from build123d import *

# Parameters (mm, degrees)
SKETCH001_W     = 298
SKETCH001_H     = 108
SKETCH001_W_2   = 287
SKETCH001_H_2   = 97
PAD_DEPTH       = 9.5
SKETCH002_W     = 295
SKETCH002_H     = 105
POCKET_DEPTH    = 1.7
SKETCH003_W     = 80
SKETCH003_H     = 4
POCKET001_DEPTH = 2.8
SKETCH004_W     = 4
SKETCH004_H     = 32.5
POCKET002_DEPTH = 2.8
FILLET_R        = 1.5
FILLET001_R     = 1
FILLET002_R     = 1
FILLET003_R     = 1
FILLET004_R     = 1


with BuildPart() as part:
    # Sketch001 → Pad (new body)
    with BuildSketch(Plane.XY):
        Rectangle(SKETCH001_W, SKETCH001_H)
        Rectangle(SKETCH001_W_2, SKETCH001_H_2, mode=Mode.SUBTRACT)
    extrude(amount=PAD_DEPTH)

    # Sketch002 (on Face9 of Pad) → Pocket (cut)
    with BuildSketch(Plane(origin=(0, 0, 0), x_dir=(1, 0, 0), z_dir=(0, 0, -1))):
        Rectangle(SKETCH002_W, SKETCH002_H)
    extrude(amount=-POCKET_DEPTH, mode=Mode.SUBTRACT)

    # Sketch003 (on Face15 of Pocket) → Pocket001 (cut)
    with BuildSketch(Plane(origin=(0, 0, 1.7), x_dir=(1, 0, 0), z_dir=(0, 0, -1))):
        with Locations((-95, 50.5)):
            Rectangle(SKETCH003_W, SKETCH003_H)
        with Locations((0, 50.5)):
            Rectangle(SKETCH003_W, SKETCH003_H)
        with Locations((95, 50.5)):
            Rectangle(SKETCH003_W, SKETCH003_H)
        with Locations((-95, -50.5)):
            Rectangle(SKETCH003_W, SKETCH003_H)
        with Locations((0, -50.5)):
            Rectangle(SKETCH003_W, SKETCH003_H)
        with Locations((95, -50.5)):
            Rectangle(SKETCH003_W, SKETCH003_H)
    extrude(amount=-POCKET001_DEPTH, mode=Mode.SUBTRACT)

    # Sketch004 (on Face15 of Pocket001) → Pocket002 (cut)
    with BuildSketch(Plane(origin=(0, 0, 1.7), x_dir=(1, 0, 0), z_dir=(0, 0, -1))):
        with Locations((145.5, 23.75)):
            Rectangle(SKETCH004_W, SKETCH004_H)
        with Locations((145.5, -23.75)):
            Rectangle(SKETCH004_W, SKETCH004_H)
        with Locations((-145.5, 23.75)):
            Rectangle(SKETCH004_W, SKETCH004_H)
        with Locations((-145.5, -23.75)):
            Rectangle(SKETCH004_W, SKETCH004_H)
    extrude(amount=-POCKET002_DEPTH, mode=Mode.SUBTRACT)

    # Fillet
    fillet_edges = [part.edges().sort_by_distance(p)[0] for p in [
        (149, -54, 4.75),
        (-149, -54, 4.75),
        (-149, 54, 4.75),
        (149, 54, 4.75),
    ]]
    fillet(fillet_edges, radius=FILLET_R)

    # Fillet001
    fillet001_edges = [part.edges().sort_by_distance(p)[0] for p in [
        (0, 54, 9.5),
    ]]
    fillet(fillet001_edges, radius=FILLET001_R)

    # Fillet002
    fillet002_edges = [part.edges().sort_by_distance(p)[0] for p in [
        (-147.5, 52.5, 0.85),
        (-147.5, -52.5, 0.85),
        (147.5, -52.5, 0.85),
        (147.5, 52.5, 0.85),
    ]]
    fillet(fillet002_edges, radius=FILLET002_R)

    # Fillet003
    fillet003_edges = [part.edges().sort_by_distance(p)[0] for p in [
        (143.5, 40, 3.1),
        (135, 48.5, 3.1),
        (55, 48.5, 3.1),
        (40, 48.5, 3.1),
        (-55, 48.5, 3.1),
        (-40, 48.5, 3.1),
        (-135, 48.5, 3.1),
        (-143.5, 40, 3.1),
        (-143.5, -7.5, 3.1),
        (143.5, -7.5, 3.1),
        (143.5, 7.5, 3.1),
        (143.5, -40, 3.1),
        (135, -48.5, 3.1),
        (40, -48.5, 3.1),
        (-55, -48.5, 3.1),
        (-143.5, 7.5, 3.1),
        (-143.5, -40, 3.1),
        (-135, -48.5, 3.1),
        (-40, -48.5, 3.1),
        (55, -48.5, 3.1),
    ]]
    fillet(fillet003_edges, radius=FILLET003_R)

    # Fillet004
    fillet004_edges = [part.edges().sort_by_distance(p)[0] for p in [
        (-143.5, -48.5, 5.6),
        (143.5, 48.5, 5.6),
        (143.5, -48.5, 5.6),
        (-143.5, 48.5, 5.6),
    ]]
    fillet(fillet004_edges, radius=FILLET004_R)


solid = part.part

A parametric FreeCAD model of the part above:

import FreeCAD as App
import Part
import Sketcher

V = App.Vector
Q = App.Units.Quantity


def edges_at(feature, points):
    """Names of the edges that pass closest to the given points."""
    edges = feature.Shape.Edges
    near = lambda p: min(range(len(edges)), key=lambda i: edges[i].distToShape(Part.Vertex(*p))[0])
    return sorted({f"Edge{near(p) + 1}" for p in points})


def add_polygon(sketch, points):
    """Adds a closed chain of lines whose ends are joined by coincident constraints."""
    first, n = sketch.GeometryCount, len(points)
    for a, b in zip(points, points[1:] + points[:1]):
        sketch.addGeometry(Part.LineSegment(App.Vector(*a, 0), App.Vector(*b, 0)), False)
    for i in range(n):
        sketch.addConstraint(Sketcher.Constraint("Coincident", first + i, 2, first + (i + 1) % n, 1))

doc = App.newDocument("Part")
body = doc.addObject("PartDesign::Body", "Body")

# Sketch on XY plane
sketch1 = body.newObject("Sketcher::SketchObject", "Sketch")
sketch1.AttachmentSupport = (doc.getObject("XY_Plane"), [""])
sketch1.MapMode = "FlatFace"
add_polygon(sketch1, [(-149, 54), (-149, -54), (149, -54), (149, 54)])  # lines 0-3
add_polygon(sketch1, [(144, -48), (-144, -48), (-144, 48), (144, 48)])  # lines 4-7
sketch1.addConstraint(Sketcher.Constraint("Vertical", 0))
sketch1.addConstraint(Sketcher.Constraint("Horizontal", 1))
sketch1.addConstraint(Sketcher.Constraint("Vertical", 2))
sketch1.addConstraint(Sketcher.Constraint("Horizontal", 3))
sketch1.addConstraint(Sketcher.Constraint("Horizontal", 4))
sketch1.addConstraint(Sketcher.Constraint("Vertical", 5))
sketch1.addConstraint(Sketcher.Constraint("Horizontal", 6))
sketch1.addConstraint(Sketcher.Constraint("Vertical", 7))
sketch1.addConstraint(Sketcher.Constraint("Symmetric", 0, 2, 2, 2, -1, 1))
sketch1.addConstraint(Sketcher.Constraint("Symmetric", 4, 2, 6, 2, -1, 1))
sketch1.addConstraint(Sketcher.Constraint("DistanceX", 1, 1, 1, 2, Q("298 mm")))
sketch1.addConstraint(Sketcher.Constraint("DistanceX", 4, 2, 4, 1, Q("287 mm")))
sketch1.addConstraint(Sketcher.Constraint("DistanceY", 0, 2, 0, 1, Q("108 mm")))
sketch1.addConstraint(Sketcher.Constraint("DistanceY", 5, 1, 5, 2, Q("97 mm")))
pad1 = body.newObject("PartDesign::Pad", "Pad")
pad1.Profile = sketch1
pad1.Length = 9.5

# Sketch on XY plane
sketch2 = body.newObject("Sketcher::SketchObject", "Sketch001")
sketch2.AttachmentSupport = (doc.getObject("XY_Plane"), [""])
sketch2.MapMode = "FlatFace"
add_polygon(sketch2, [(-148, -52), (-148, 52), (148, 52), (148, -52)])  # lines 0-3
sketch2.addConstraint(Sketcher.Constraint("Vertical", 0))
sketch2.addConstraint(Sketcher.Constraint("Horizontal", 1))
sketch2.addConstraint(Sketcher.Constraint("Vertical", 2))
sketch2.addConstraint(Sketcher.Constraint("Horizontal", 3))
sketch2.addConstraint(Sketcher.Constraint("Symmetric", 0, 2, 2, 2, -1, 1))
sketch2.addConstraint(Sketcher.Constraint("DistanceX", 1, 1, 1, 2, Q("295 mm")))
sketch2.addConstraint(Sketcher.Constraint("DistanceY", 0, 1, 0, 2, Q("105 mm")))
pocket1 = body.newObject("PartDesign::Pocket", "Pocket")
pocket1.Profile = sketch2
pocket1.Length = 1.7
pocket1.Reversed = True

# Sketch on XY plane
sketch3 = body.newObject("Sketcher::SketchObject", "Sketch002")
sketch3.AttachmentSupport = (doc.getObject("XY_Plane"), [""])
sketch3.MapMode = "FlatFace"
sketch3.AttachmentOffset = App.Placement(V(0, 0, 1.7), App.Rotation())
add_polygon(sketch3, [(-135, -52.5), (-135, -48.5), (-55, -48.5), (-55, -52.5)])  # lines 0-3
add_polygon(sketch3, [(-40, -52.5), (-40, -48.5), (40, -48.5), (40, -52.5)])  # lines 4-7
add_polygon(sketch3, [(55, -52.5), (55, -48.5), (135, -48.5), (135, -52.5)])  # lines 8-11
add_polygon(sketch3, [(-135, 48.5), (-135, 52.5), (-55, 52.5), (-55, 48.5)])  # lines 12-15
add_polygon(sketch3, [(-40, 48.5), (-40, 52.5), (40, 52.5), (40, 48.5)])  # lines 16-19
add_polygon(sketch3, [(55, 48.5), (55, 52.5), (135, 52.5), (135, 48.5)])  # lines 20-23
sketch3.addConstraint(Sketcher.Constraint("Vertical", 0))
sketch3.addConstraint(Sketcher.Constraint("Horizontal", 1))
sketch3.addConstraint(Sketcher.Constraint("Vertical", 2))
sketch3.addConstraint(Sketcher.Constraint("Horizontal", 3))
sketch3.addConstraint(Sketcher.Constraint("Vertical", 4))
sketch3.addConstraint(Sketcher.Constraint("Horizontal", 5))
sketch3.addConstraint(Sketcher.Constraint("Vertical", 6))
sketch3.addConstraint(Sketcher.Constraint("Horizontal", 7))
sketch3.addConstraint(Sketcher.Constraint("Vertical", 8))
sketch3.addConstraint(Sketcher.Constraint("Horizontal", 9))
sketch3.addConstraint(Sketcher.Constraint("Vertical", 10))
sketch3.addConstraint(Sketcher.Constraint("Horizontal", 11))
sketch3.addConstraint(Sketcher.Constraint("Vertical", 12))
sketch3.addConstraint(Sketcher.Constraint("Horizontal", 13))
sketch3.addConstraint(Sketcher.Constraint("Vertical", 14))
sketch3.addConstraint(Sketcher.Constraint("Horizontal", 15))
sketch3.addConstraint(Sketcher.Constraint("Vertical", 16))
sketch3.addConstraint(Sketcher.Constraint("Horizontal", 17))
sketch3.addConstraint(Sketcher.Constraint("Vertical", 18))
sketch3.addConstraint(Sketcher.Constraint("Horizontal", 19))
sketch3.addConstraint(Sketcher.Constraint("Vertical", 20))
sketch3.addConstraint(Sketcher.Constraint("Horizontal", 21))
sketch3.addConstraint(Sketcher.Constraint("Vertical", 22))
sketch3.addConstraint(Sketcher.Constraint("Horizontal", 23))
sketch3.addConstraint(Sketcher.Constraint("Symmetric", 10, 2, 12, 2, -1, 1))
sketch3.addConstraint(Sketcher.Constraint("Symmetric", 8, 2, 14, 2, -1, 1))
sketch3.addConstraint(Sketcher.Constraint("Symmetric", 6, 2, 16, 2, -1, 1))
sketch3.addConstraint(Sketcher.Constraint("Symmetric", 4, 2, 18, 2, -1, 1))
sketch3.addConstraint(Sketcher.Constraint("Symmetric", 2, 2, 20, 2, -1, 1))
sketch3.addConstraint(Sketcher.Constraint("Symmetric", 0, 2, 22, 2, -1, 1))
sketch3.addConstraint(Sketcher.Constraint("Symmetric", 1, 2, 8, 2, -2))
sketch3.addConstraint(Sketcher.Constraint("Symmetric", 3, 2, 10, 2, -2))
sketch3.addConstraint(Sketcher.Constraint("Horizontal", 1, 2, 4, 2))
sketch3.addConstraint(Sketcher.Constraint("Horizontal", 3, 2, 6, 2))
sketch3.addConstraint(Sketcher.Constraint("Vertical", 7, 2, 16, 2))
sketch3.addConstraint(Sketcher.Constraint("Equal", 3, 5))
sketch3.addConstraint(Sketcher.Constraint("DistanceX", 1, 1, 1, 2, Q("80 mm")))
sketch3.addConstraint(Sketcher.Constraint("DistanceY", 0, 1, 0, 2, Q("4 mm")))
sketch3.addConstraint(Sketcher.Constraint("DistanceX", 0, 2, -1, 1, Q("135 mm")))
sketch3.addConstraint(Sketcher.Constraint("DistanceY", 0, 2, 12, 2, Q("101 mm")))
pocket2 = body.newObject("PartDesign::Pocket", "Pocket001")
pocket2.Profile = sketch3
pocket2.Length = 2.8
pocket2.Reversed = True

# Sketch on XY plane
sketch4 = body.newObject("Sketcher::SketchObject", "Sketch003")
sketch4.AttachmentSupport = (doc.getObject("XY_Plane"), [""])
sketch4.MapMode = "FlatFace"
sketch4.AttachmentOffset = App.Placement(V(0, 0, 1.7), App.Rotation())
add_polygon(sketch4, [(143.5, -40), (143.5, -7.5), (147.5, -7.5), (147.5, -40)])  # lines 0-3
add_polygon(sketch4, [(143.5, 7.5), (143.5, 40), (147.5, 40), (147.5, 7.5)])  # lines 4-7
add_polygon(sketch4, [(-147.5, -40), (-147.5, -7.5), (-143.5, -7.5), (-143.5, -40)])  # lines 8-11
add_polygon(sketch4, [(-147.5, 7.5), (-147.5, 40), (-143.5, 40), (-143.5, 7.5)])  # lines 12-15
sketch4.addConstraint(Sketcher.Constraint("Vertical", 0))
sketch4.addConstraint(Sketcher.Constraint("Horizontal", 1))
sketch4.addConstraint(Sketcher.Constraint("Vertical", 2))
sketch4.addConstraint(Sketcher.Constraint("Horizontal", 3))
sketch4.addConstraint(Sketcher.Constraint("Vertical", 4))
sketch4.addConstraint(Sketcher.Constraint("Horizontal", 5))
sketch4.addConstraint(Sketcher.Constraint("Vertical", 6))
sketch4.addConstraint(Sketcher.Constraint("Horizontal", 7))
sketch4.addConstraint(Sketcher.Constraint("Vertical", 8))
sketch4.addConstraint(Sketcher.Constraint("Horizontal", 9))
sketch4.addConstraint(Sketcher.Constraint("Vertical", 10))
sketch4.addConstraint(Sketcher.Constraint("Horizontal", 11))
sketch4.addConstraint(Sketcher.Constraint("Vertical", 12))
sketch4.addConstraint(Sketcher.Constraint("Horizontal", 13))
sketch4.addConstraint(Sketcher.Constraint("Vertical", 14))
sketch4.addConstraint(Sketcher.Constraint("Horizontal", 15))
sketch4.addConstraint(Sketcher.Constraint("Symmetric", 6, 2, 8, 2, -1, 1))
sketch4.addConstraint(Sketcher.Constraint("Symmetric", 4, 2, 10, 2, -1, 1))
sketch4.addConstraint(Sketcher.Constraint("Symmetric", 2, 2, 12, 2, -1, 1))
sketch4.addConstraint(Sketcher.Constraint("Symmetric", 0, 2, 14, 2, -1, 1))
sketch4.addConstraint(Sketcher.Constraint("Symmetric", 1, 2, 8, 2, -2))
sketch4.addConstraint(Sketcher.Constraint("Symmetric", 3, 2, 10, 2, -2))
sketch4.addConstraint(Sketcher.Constraint("DistanceX", 1, 1, 1, 2, Q("4 mm")))
sketch4.addConstraint(Sketcher.Constraint("DistanceY", 0, 1, 0, 2, Q("32.5 mm")))
sketch4.addConstraint(Sketcher.Constraint("DistanceY", 2, 2, -1, 1, Q("40 mm")))
sketch4.addConstraint(Sketcher.Constraint("DistanceX", 8, 2, 0, 2, Q("291 mm")))
pocket3 = body.newObject("PartDesign::Pocket", "Pocket002")
pocket3.Profile = sketch4
pocket3.Length = 2.8
pocket3.Reversed = True
doc.recompute()

fillet = body.newObject("PartDesign::Fillet", "Fillet")
fillet.Base = (pocket3, edges_at(pocket3, [
    (149, -54, 4.75),
    (-149, -54, 4.75),
    (-149, 54, 4.75),
    (149, 54, 4.75),
]))
fillet.Radius = 1.5
doc.recompute()

fillet2 = body.newObject("PartDesign::Fillet", "Fillet001")
fillet2.Base = (fillet, edges_at(fillet, [(0, 54, 9.5)]))
fillet2.Radius = 1
doc.recompute()

fillet3 = body.newObject("PartDesign::Fillet", "Fillet002")
fillet3.Base = (fillet2, edges_at(fillet2, [
    (-147.5, 52.5, 0.85),
    (-147.5, -52.5, 0.85),
    (147.5, -52.5, 0.85),
    (147.5, 52.5, 0.85),
]))
fillet3.Radius = 1
doc.recompute()

fillet4 = body.newObject("PartDesign::Fillet", "Fillet003")
fillet4.Base = (fillet3, edges_at(fillet3, [
    (143.5, 40, 3.1),
    (135, 48.5, 3.1),
    (55, 48.5, 3.1),
    (40, 48.5, 3.1),
    (-55, 48.5, 3.1),
    (-40, 48.5, 3.1),
    (-135, 48.5, 3.1),
    (-143.5, 40, 3.1),
    (-143.5, -7.5, 3.1),
    (143.5, -7.5, 3.1),
    (143.5, 7.5, 3.1),
    (143.5, -40, 3.1),
    (135, -48.5, 3.1),
    (40, -48.5, 3.1),
    (-55, -48.5, 3.1),
    (-143.5, 7.5, 3.1),
    (-143.5, -40, 3.1),
    (-135, -48.5, 3.1),
    (-40, -48.5, 3.1),
    (55, -48.5, 3.1),
]))
fillet4.Radius = 1
doc.recompute()

fillet5 = body.newObject("PartDesign::Fillet", "Fillet004")
fillet5.Base = (fillet4, edges_at(fillet4, [
    (-143.5, -48.5, 5.6),
    (143.5, 48.5, 5.6),
    (143.5, -48.5, 5.6),
    (-143.5, 48.5, 5.6),
]))
fillet5.Radius = 1

doc.recompute()
